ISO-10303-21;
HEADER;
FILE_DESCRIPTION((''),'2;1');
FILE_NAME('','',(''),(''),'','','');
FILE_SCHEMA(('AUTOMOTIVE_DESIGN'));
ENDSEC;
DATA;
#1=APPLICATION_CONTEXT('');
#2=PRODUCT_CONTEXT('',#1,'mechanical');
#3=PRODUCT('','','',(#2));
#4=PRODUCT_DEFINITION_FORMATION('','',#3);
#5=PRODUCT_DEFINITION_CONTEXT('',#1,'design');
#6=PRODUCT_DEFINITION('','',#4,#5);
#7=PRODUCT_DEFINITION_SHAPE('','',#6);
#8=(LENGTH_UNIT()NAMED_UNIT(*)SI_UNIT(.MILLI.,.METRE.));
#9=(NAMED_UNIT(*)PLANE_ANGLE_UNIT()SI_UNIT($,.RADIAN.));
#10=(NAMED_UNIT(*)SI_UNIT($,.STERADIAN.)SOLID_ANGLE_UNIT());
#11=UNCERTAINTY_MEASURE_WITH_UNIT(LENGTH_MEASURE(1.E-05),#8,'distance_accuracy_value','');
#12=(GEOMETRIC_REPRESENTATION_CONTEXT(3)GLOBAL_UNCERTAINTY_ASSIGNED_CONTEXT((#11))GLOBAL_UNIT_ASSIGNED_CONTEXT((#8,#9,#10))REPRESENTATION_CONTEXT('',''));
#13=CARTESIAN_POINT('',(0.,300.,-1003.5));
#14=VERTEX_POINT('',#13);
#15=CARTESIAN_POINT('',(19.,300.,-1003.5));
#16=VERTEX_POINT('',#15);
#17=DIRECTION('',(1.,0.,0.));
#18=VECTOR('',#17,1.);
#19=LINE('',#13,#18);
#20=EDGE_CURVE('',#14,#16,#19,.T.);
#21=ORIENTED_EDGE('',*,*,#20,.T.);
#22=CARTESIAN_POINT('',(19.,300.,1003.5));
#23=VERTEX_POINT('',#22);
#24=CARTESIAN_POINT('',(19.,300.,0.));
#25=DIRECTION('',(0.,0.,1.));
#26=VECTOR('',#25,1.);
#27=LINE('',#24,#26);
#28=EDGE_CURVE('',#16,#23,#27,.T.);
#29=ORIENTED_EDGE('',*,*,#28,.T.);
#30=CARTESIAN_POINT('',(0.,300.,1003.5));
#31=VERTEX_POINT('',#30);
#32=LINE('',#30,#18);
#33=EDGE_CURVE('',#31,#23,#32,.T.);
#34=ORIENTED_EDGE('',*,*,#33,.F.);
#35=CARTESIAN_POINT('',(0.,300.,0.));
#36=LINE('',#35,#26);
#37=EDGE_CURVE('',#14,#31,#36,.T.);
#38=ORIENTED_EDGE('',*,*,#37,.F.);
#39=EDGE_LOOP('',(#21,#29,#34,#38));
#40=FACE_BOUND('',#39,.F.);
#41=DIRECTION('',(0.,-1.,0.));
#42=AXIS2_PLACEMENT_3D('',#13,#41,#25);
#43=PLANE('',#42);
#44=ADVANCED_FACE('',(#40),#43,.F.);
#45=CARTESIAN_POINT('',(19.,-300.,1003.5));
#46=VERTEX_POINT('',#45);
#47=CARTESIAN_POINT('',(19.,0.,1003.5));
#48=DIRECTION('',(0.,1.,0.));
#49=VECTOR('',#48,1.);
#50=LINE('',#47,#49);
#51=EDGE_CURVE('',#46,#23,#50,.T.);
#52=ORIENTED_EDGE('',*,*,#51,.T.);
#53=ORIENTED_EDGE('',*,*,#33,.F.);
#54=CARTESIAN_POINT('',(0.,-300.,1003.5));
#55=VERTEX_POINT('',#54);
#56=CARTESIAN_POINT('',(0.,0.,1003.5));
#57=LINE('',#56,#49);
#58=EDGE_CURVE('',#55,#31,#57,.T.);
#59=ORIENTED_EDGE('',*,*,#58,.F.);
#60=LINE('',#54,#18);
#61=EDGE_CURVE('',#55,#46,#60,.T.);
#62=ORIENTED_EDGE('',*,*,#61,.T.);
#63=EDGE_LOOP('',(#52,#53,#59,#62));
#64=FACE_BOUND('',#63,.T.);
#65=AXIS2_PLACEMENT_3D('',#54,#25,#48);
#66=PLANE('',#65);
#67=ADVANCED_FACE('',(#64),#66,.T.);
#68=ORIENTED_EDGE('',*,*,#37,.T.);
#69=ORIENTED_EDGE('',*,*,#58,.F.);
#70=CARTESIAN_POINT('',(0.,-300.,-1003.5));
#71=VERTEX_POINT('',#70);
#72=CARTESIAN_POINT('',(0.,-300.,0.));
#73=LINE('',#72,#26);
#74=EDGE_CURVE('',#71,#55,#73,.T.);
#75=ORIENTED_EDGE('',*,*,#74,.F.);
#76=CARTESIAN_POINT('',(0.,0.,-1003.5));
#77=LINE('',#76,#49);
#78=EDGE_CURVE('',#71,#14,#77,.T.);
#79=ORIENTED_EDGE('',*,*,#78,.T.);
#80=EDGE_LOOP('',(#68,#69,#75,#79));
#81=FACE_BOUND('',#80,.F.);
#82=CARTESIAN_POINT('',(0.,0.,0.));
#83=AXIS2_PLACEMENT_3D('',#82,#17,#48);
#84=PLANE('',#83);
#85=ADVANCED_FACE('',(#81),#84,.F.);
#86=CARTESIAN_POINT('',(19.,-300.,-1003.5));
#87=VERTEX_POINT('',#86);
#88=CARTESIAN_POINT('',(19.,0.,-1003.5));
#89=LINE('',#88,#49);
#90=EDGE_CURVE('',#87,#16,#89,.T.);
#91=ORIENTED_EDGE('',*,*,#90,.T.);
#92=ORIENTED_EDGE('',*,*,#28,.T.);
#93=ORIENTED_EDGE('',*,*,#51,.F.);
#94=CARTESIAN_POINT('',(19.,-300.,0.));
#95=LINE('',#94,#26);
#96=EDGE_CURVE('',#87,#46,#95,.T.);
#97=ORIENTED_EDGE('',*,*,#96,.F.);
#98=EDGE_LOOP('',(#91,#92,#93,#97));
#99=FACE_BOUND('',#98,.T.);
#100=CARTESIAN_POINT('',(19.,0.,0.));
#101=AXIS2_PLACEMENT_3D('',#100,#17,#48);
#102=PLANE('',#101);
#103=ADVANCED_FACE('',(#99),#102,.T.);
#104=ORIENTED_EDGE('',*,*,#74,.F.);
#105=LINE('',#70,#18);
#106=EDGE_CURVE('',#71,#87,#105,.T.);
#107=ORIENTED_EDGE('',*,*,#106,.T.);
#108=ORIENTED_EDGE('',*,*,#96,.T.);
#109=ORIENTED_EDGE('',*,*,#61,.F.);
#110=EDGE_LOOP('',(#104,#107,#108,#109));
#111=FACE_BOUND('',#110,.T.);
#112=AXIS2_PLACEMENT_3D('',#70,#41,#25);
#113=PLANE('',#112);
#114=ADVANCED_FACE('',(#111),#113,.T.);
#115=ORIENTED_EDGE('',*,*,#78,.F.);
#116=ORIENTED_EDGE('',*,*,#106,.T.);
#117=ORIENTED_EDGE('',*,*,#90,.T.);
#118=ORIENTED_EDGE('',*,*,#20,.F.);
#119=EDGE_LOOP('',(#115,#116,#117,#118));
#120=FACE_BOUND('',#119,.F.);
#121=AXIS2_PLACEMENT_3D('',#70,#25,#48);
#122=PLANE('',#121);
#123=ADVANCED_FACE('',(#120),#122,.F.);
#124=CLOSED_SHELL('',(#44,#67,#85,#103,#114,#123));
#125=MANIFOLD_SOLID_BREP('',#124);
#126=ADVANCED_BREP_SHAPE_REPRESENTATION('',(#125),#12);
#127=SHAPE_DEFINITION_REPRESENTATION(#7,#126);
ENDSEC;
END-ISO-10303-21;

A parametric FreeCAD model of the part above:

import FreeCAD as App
import Part
import Sketcher
from FreeCAD import Vector

doc = App.newDocument("Part")
body = doc.addObject("PartDesign::Body", "Body")

sketch1 = doc.addObject("Sketcher::SketchObject", "Sketch")
body.addObject(sketch1)
sketch1.AttachmentSupport = (doc.YZ_Plane, [""])
sketch1.MapMode = "FlatFace"
sketch1.addGeometry(Part.LineSegment(Vector(-300, 1003.5, 0), Vector(-300, -1003.5, 0)), False)
sketch1.addGeometry(Part.LineSegment(Vector(-300, -1003.5, 0), Vector(300, -1003.5, 0)), False)
sketch1.addGeometry(Part.LineSegment(Vector(300, -1003.5, 0), Vector(300, 1003.5, 0)), False)
sketch1.addGeometry(Part.LineSegment(Vector(300, 1003.5, 0), Vector(-300, 1003.5, 0)), False)
sketch1.addConstraint(Sketcher.Constraint("Coincident", 0, 2, 1, 1))
sketch1.addConstraint(Sketcher.Constraint("Coincident", 1, 2, 2, 1))
sketch1.addConstraint(Sketcher.Constraint("Coincident", 2, 2, 3, 1))
sketch1.addConstraint(Sketcher.Constraint("Coincident", 3, 2, 0, 1))
sketch1.addConstraint(Sketcher.Constraint("Vertical", 0))
sketch1.addConstraint(Sketcher.Constraint("Horizontal", 1))
sketch1.addConstraint(Sketcher.Constraint("Vertical", 2))
sketch1.addConstraint(Sketcher.Constraint("Horizontal", 3))
sketch1.addConstraint(Sketcher.Constraint("Symmetric", 0, 2, 2, 2, -1, 1))
sketch1.addConstraint(Sketcher.Constraint("DistanceX", 1, 1, 1, 2, 600.0))
sketch1.addConstraint(Sketcher.Constraint("DistanceY", 0, 2, 0, 1, 2007.0))
pad1 = doc.addObject("PartDesign::Pad", "Pad")
body.addObject(pad1)
pad1.Profile = sketch1
pad1.Length = 19

doc.recompute()
